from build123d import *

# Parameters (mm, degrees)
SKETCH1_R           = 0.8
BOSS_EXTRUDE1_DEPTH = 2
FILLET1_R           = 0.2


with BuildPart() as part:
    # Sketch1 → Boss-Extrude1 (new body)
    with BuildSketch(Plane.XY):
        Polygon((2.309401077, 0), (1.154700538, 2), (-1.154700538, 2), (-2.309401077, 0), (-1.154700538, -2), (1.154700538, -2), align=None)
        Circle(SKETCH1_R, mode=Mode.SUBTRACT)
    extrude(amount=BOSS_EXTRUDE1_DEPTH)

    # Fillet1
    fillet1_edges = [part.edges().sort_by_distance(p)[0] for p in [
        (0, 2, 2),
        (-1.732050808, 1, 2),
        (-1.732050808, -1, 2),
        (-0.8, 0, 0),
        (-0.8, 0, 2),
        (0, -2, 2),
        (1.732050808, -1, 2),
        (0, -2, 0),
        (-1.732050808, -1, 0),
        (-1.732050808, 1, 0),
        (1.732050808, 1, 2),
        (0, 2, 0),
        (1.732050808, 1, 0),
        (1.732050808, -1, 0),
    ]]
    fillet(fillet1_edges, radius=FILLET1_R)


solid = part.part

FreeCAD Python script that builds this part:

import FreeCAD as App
import Part
import Sketcher
from FreeCAD import Vector
Q = App.Units.Quantity


def edges_at(feature, points):
    """Names of the edges that pass closest to the given points."""
    edges = feature.Shape.Edges
    near = lambda p: min(range(len(edges)), key=lambda i: edges[i].distToShape(Part.Vertex(*p))[0])
    return sorted({f"Edge{near(p) + 1}" for p in points})


def add_polygon(sketch, points):
    """Adds a closed chain of lines whose ends are joined by coincident constraints."""
    first, n = sketch.GeometryCount, len(points)
    for a, b in zip(points, points[1:] + points[:1]):
        sketch.addGeometry(Part.LineSegment(App.Vector(*a, 0), App.Vector(*b, 0)), False)
    for i in range(n):
        sketch.addConstraint(Sketcher.Constraint("Coincident", first + i, 2, first + (i + 1) % n, 1))

doc = App.newDocument("Part")
body = doc.addObject("PartDesign::Body", "Body")

sketch1 = body.newObject("Sketcher::SketchObject", "Sketch")
sketch1.AttachmentSupport = (doc.getObject("XY_Plane"), [""])
sketch1.MapMode = "FlatFace"
add_polygon(sketch1, [(2.3, 0), (1.2, 2), (-1.2, 2), (-2.3, 0), (-1.2, -2), (1.2, -2)])
sketch1.addGeometry(Part.Circle(Vector(0, 0, 0), Vector(0, 0, 1), 0.8), False)
sketch1.addConstraint(Sketcher.Constraint("Horizontal", 1))
sketch1.addConstraint(Sketcher.Constraint("Horizontal", 4))
sketch1.addConstraint(Sketcher.Constraint("Coincident", 6, 3, -1, 1))
sketch1.addConstraint(Sketcher.Constraint("Symmetric", 0, 2, 3, 2, -1, 1))
sketch1.addConstraint(Sketcher.Constraint("Symmetric", 2, 2, 5, 2, -1, 1))
sketch1.addConstraint(Sketcher.Constraint("PointOnObject", 2, 2, -1))
sketch1.addConstraint(Sketcher.Constraint("Parallel", 2, 5))
sketch1.addConstraint(Sketcher.Constraint("Vertical", 1, 2, 3, 2))
sketch1.addConstraint(Sketcher.Constraint("Diameter", 6, Q("1.6 mm")))
sketch1.addConstraint(Sketcher.Constraint("Angle", 0, Q("120 deg")))
sketch1.addConstraint(Sketcher.Constraint("DistanceY", -1, 1, 0, 2, Q("2 mm")))
sketch1.addConstraint(Sketcher.Constraint("DistanceX", 1, 2, 1, 1, Q("2.309401 mm")))
pad1 = body.newObject("PartDesign::Pad", "Pad")
pad1.Profile = sketch1
pad1.Length = 2
doc.recompute()

fillet = body.newObject("PartDesign::Fillet", "Fillet")
fillet.Base = (pad1, edges_at(pad1, [
    (0, 2, 2),
    (-1.732, 1, 2),
    (-1.732, -1, 2),
    (-0.8, 0, 0),
    (-0.8, 0, 2),
    (0, -2, 2),
    (1.732, -1, 2),
    (0, -2, 0),
    (-1.732, -1, 0),
    (-1.732, 1, 0),
    (1.732, 1, 2),
    (0, 2, 0),
    (1.732, 1, 0),
    (1.732, -1, 0),
]))
fillet.Radius = 0.2

doc.recompute()
